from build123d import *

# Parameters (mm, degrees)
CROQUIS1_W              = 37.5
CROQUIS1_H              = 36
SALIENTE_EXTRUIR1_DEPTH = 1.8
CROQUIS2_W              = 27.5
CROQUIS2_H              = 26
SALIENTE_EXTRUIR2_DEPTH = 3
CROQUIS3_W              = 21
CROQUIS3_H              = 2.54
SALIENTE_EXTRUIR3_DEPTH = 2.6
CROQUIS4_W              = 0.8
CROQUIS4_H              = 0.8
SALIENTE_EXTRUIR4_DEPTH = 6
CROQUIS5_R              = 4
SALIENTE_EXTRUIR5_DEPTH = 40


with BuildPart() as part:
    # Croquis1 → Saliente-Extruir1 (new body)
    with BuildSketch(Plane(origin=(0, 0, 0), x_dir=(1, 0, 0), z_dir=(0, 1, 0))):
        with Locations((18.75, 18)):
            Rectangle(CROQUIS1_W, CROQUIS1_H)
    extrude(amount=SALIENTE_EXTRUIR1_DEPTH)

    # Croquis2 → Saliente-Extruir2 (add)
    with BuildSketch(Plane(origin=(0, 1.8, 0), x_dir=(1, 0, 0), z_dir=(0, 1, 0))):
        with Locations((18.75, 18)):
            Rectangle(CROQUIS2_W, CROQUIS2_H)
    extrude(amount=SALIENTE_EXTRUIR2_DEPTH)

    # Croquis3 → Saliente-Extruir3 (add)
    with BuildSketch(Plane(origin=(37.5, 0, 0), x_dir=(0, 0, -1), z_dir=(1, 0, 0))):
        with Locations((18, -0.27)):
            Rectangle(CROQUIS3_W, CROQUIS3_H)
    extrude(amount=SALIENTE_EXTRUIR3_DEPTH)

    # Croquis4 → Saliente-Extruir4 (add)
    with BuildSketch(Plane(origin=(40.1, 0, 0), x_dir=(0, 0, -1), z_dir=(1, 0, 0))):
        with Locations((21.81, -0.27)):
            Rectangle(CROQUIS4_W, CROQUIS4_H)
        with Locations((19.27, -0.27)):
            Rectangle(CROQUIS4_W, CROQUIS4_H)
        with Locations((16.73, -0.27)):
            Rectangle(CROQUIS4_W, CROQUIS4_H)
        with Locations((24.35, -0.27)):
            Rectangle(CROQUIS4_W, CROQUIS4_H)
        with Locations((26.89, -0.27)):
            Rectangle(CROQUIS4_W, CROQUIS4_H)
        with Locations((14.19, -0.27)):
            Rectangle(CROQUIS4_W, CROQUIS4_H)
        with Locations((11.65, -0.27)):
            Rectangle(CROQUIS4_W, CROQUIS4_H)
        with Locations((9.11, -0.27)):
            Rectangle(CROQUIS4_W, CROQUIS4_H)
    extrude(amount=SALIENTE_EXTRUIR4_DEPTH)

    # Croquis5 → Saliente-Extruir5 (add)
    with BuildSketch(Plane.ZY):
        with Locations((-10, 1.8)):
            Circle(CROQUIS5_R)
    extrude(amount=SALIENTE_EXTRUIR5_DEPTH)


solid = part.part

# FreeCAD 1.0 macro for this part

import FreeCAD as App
import Part
import Sketcher
from FreeCAD import Vector

doc = App.newDocument("Part")
params = doc.addObject("Spreadsheet::Sheet", "Params")
for row, (alias, value) in enumerate([
    ("sketch1_height", "36 mm"),
    ("sketch1_width", "37.5 mm"),
    ("pad1_length", "1.8 mm"),
    ("sketch2_height", "26 mm"),
    ("sketch2_width", "27.5 mm"),
    ("pad2_length", "3 mm"),
    ("sketch3_height", "21 mm"),
    ("sketch3_width", "2.54 mm"),
    ("pad3_length", "2.6 mm"),
    ("sketch4_width", "0.8 mm"),
    ("pad4_length", "6 mm"),
    ("sketch5_diameter", "8 mm"),
    ("pad5_length", "40 mm"),
], start=1):
    params.set(f"A{row}", alias)
    params.set(f"B{row}", "=" + value)
    params.setAlias(f"B{row}", alias)

body = doc.addObject("PartDesign::Body", "Body")

# Sketch on XZ plane
sketch1 = doc.addObject("Sketcher::SketchObject", "Sketch")
body.addObject(sketch1)
sketch1.AttachmentSupport = (doc.XZ_Plane, [""])
sketch1.MapMode = "FlatFace"
sketch1.addGeometry(Part.LineSegment(Vector(0, -36, 0), Vector(0, 0, 0)), False)
sketch1.addGeometry(Part.LineSegment(Vector(0, 0, 0), Vector(38, 0, 0)), False)
sketch1.addGeometry(Part.LineSegment(Vector(38, 0, 0), Vector(38, -36, 0)), False)
sketch1.addGeometry(Part.LineSegment(Vector(38, -36, 0), Vector(0, -36, 0)), False)
sketch1.addConstraint(Sketcher.Constraint("Coincident", 0, 2, 1, 1))
sketch1.addConstraint(Sketcher.Constraint("Coincident", 1, 2, 2, 1))
sketch1.addConstraint(Sketcher.Constraint("Coincident", 2, 2, 3, 1))
sketch1.addConstraint(Sketcher.Constraint("Coincident", 3, 2, 0, 1))
sketch1.addConstraint(Sketcher.Constraint("Vertical", 0))
sketch1.addConstraint(Sketcher.Constraint("Horizontal", 1))
sketch1.addConstraint(Sketcher.Constraint("Vertical", 2))
sketch1.addConstraint(Sketcher.Constraint("Horizontal", 3))
sketch1.addConstraint(Sketcher.Constraint("Coincident", 0, 2, -1, 1))
sketch1.addConstraint(Sketcher.Constraint("DistanceY", 0, 1, 0, 2, 36.0))
sketch1.addConstraint(Sketcher.Constraint("DistanceX", 1, 1, 1, 2, 37.5))
sketch1.setExpression("Constraints[9]", "Params.sketch1_height")
sketch1.setExpression("Constraints[10]", "Params.sketch1_width")
pad1 = doc.addObject("PartDesign::Pad", "Pad")
body.addObject(pad1)
pad1.Profile = sketch1
pad1.setExpression("Length", "Params.pad1_length")
pad1.Reversed = True

# Sketch on XZ plane
sketch2 = doc.addObject("Sketcher::SketchObject", "Sketch001")
body.addObject(sketch2)
sketch2.AttachmentSupport = (doc.XZ_Plane, [""])
sketch2.MapMode = "FlatFace"
sketch2.AttachmentOffset = App.Placement(Vector(0, 0, -1.8), App.Rotation())
sketch2.addGeometry(Part.LineSegment(Vector(5, -31, 0), Vector(5, -5, 0)), False)
sketch2.addGeometry(Part.LineSegment(Vector(5, -5, 0), Vector(32, -5, 0)), False)
sketch2.addGeometry(Part.LineSegment(Vector(32, -5, 0), Vector(32, -31, 0)), False)
sketch2.addGeometry(Part.LineSegment(Vector(32, -31, 0), Vector(5, -31, 0)), False)
sketch2.addConstraint(Sketcher.Constraint("Coincident", 0, 2, 1, 1))
sketch2.addConstraint(Sketcher.Constraint("Coincident", 1, 2, 2, 1))
sketch2.addConstraint(Sketcher.Constraint("Coincident", 2, 2, 3, 1))
sketch2.addConstraint(Sketcher.Constraint("Coincident", 3, 2, 0, 1))
sketch2.addConstraint(Sketcher.Constraint("Vertical", 0))
sketch2.addConstraint(Sketcher.Constraint("Horizontal", 1))
sketch2.addConstraint(Sketcher.Constraint("Vertical", 2))
sketch2.addConstraint(Sketcher.Constraint("Horizontal", 3))
sketch2.addConstraint(Sketcher.Constraint("DistanceY", 0, 1, 0, 2, 26.0))
sketch2.addConstraint(Sketcher.Constraint("DistanceX", 1, 1, 1, 2, 27.5))
sketch2.addConstraint(Sketcher.Constraint("DistanceX", -1, 1, 0, 2, 5.0))
sketch2.addConstraint(Sketcher.Constraint("DistanceY", 0, 2, -1, 1, 5.0))
sketch2.setExpression("Constraints[8]", "Params.sketch2_height")
sketch2.setExpression("Constraints[9]", "Params.sketch2_width")
pad2 = doc.addObject("PartDesign::Pad", "Pad001")
body.addObject(pad2)
pad2.Profile = sketch2
pad2.setExpression("Length", "Params.pad2_length")
pad2.Reversed = True

# Sketch on YZ plane
sketch3 = doc.addObject("Sketcher::SketchObject", "Sketch002")
body.addObject(sketch3)
sketch3.AttachmentSupport = (doc.YZ_Plane, [""])
sketch3.MapMode = "FlatFace"
sketch3.AttachmentOffset = App.Placement(Vector(0, 0, 37.5), App.Rotation())
sketch3.addGeometry(Part.LineSegment(Vector(1, -7.5, 0), Vector(-1.5, -7.5, 0)), False)
sketch3.addGeometry(Part.LineSegment(Vector(-1.5, -7.5, 0), Vector(-1.5, -28.5, 0)), False)
sketch3.addGeometry(Part.LineSegment(Vector(-1.5, -28.5, 0), Vector(1, -28.5, 0)), False)
sketch3.addGeometry(Part.LineSegment(Vector(1, -28.5, 0), Vector(1, -7.5, 0)), False)
sketch3.addConstraint(Sketcher.Constraint("Coincident", 0, 2, 1, 1))
sketch3.addConstraint(Sketcher.Constraint("Coincident", 1, 2, 2, 1))
sketch3.addConstraint(Sketcher.Constraint("Coincident", 2, 2, 3, 1))
sketch3.addConstraint(Sketcher.Constraint("Coincident", 3, 2, 0, 1))
sketch3.addConstraint(Sketcher.Constraint("Horizontal", 0))
sketch3.addConstraint(Sketcher.Constraint("Vertical", 1))
sketch3.addConstraint(Sketcher.Constraint("Horizontal", 2))
sketch3.addConstraint(Sketcher.Constraint("Vertical", 3))
sketch3.addConstraint(Sketcher.Constraint("DistanceY", 1, 2, 1, 1, 21.0))
sketch3.addConstraint(Sketcher.Constraint("DistanceX", -1, 1, 2, 2, 1.0))
sketch3.addConstraint(Sketcher.Constraint("DistanceX", 0, 2, 0, 1, 2.54))
sketch3.addConstraint(Sketcher.Constraint("DistanceY", 0, 2, -1, 1, 7.5))
sketch3.setExpression("Constraints[8]", "Params.sketch3_height")
sketch3.setExpression("Constraints[10]", "Params.sketch3_width")
pad3 = doc.addObject("PartDesign::Pad", "Pad002")
body.addObject(pad3)
pad3.Profile = sketch3
pad3.setExpression("Length", "Params.pad3_length")

# Sketch on YZ plane
sketch4 = doc.addObject("Sketcher::SketchObject", "Sketch003")
body.addObject(sketch4)
sketch4.AttachmentSupport = (doc.YZ_Plane, [""])
sketch4.MapMode = "FlatFace"
sketch4.AttachmentOffset = App.Placement(Vector(0, 0, 40.1), App.Rotation())
sketch4.addGeometry(Part.LineSegment(Vector(0.1, -21.4, 0), Vector(-0.7, -21.4, 0)), False)
sketch4.addGeometry(Part.LineSegment(Vector(-0.7, -21.4, 0), Vector(-0.7, -22.2, 0)), False)
sketch4.addGeometry(Part.LineSegment(Vector(-0.7, -22.2, 0), Vector(0.1, -22.2, 0)), False)
sketch4.addGeometry(Part.LineSegment(Vector(0.1, -22.2, 0), Vector(0.1, -21.4, 0)), False)
sketch4.addGeometry(Part.LineSegment(Vector(0.1, -18.9, 0), Vector(-0.7, -18.9, 0)), False)
sketch4.addGeometry(Part.LineSegment(Vector(-0.7, -18.9, 0), Vector(-0.7, -19.7, 0)), False)
sketch4.addGeometry(Part.LineSegment(Vector(-0.7, -19.7, 0), Vector(0.1, -19.7, 0)), False)
sketch4.addGeometry(Part.LineSegment(Vector(0.1, -19.7, 0), Vector(0.1, -18.9, 0)), False)
sketch4.addGeometry(Part.LineSegment(Vector(0.1, -16.3, 0), Vector(-0.7, -16.3, 0)), False)
sketch4.addGeometry(Part.LineSegment(Vector(-0.7, -16.3, 0), Vector(-0.7, -17.1, 0)), False)
sketch4.addGeometry(Part.LineSegment(Vector(-0.7, -17.1, 0), Vector(0.1, -17.1, 0)), False)
sketch4.addGeometry(Part.LineSegment(Vector(0.1, -17.1, 0), Vector(0.1, -16.3, 0)), False)
sketch4.addGeometry(Part.LineSegment(Vector(0.1, -23.9, 0), Vector(-0.7, -23.9, 0)), False)
sketch4.addGeometry(Part.LineSegment(Vector(-0.7, -23.9, 0), Vector(-0.7, -24.8, 0)), False)
sketch4.addGeometry(Part.LineSegment(Vector(-0.7, -24.8, 0), Vector(0.1, -24.8, 0)), False)
sketch4.addGeometry(Part.LineSegment(Vector(0.1, -24.8, 0), Vector(0.1, -23.9, 0)), False)
sketch4.addGeometry(Part.LineSegment(Vector(0.1, -26.5, 0), Vector(-0.7, -26.5, 0)), False)
sketch4.addGeometry(Part.LineSegment(Vector(-0.7, -26.5, 0), Vector(-0.7, -27.3, 0)), False)
sketch4.addGeometry(Part.LineSegment(Vector(-0.7, -27.3, 0), Vector(0.1, -27.3, 0)), False)
sketch4.addGeometry(Part.LineSegment(Vector(0.1, -27.3, 0), Vector(0.1, -26.5, 0)), False)
sketch4.addGeometry(Part.LineSegment(Vector(0.1, -13.8, 0), Vector(-0.7, -13.8, 0)), False)
sketch4.addGeometry(Part.LineSegment(Vector(-0.7, -13.8, 0), Vector(-0.7, -14.6, 0)), False)
sketch4.addGeometry(Part.LineSegment(Vector(-0.7, -14.6, 0), Vector(0.1, -14.6, 0)), False)
sketch4.addGeometry(Part.LineSegment(Vector(0.1, -14.6, 0), Vector(0.1, -13.8, 0)), False)
sketch4.addGeometry(Part.LineSegment(Vector(0.1, -11.2, 0), Vector(-0.7, -11.2, 0)), False)
sketch4.addGeometry(Part.LineSegment(Vector(-0.7, -11.2, 0), Vector(-0.7, -12.1, 0)), False)
sketch4.addGeometry(Part.LineSegment(Vector(-0.7, -12.1, 0), Vector(0.1, -12.1, 0)), False)
sketch4.addGeometry(Part.LineSegment(Vector(0.1, -12.1, 0), Vector(0.1, -11.2, 0)), False)
sketch4.addGeometry(Part.LineSegment(Vector(0.1, -8.7, 0), Vector(-0.7, -8.7, 0)), False)
sketch4.addGeometry(Part.LineSegment(Vector(-0.7, -8.7, 0), Vector(-0.7, -9.5, 0)), False)
sketch4.addGeometry(Part.LineSegment(Vector(-0.7, -9.5, 0), Vector(0.1, -9.5, 0)), False)
sketch4.addGeometry(Part.LineSegment(Vector(0.1, -9.5, 0), Vector(0.1, -8.7, 0)), False)
sketch4.addConstraint(Sketcher.Constraint("Coincident", 0, 2, 1, 1))
sketch4.addConstraint(Sketcher.Constraint("Coincident", 1, 2, 2, 1))
sketch4.addConstraint(Sketcher.Constraint("Coincident", 2, 2, 3, 1))
sketch4.addConstraint(Sketcher.Constraint("Coincident", 3, 2, 0, 1))
sketch4.addConstraint(Sketcher.Constraint("Coincident", 4, 2, 5, 1))
sketch4.addConstraint(Sketcher.Constraint("Coincident", 5, 2, 6, 1))
sketch4.addConstraint(Sketcher.Constraint("Coincident", 6, 2, 7, 1))
sketch4.addConstraint(Sketcher.Constraint("Coincident", 7, 2, 4, 1))
sketch4.addConstraint(Sketcher.Constraint("Coincident", 8, 2, 9, 1))
sketch4.addConstraint(Sketcher.Constraint("Coincident", 9, 2, 10, 1))
sketch4.addConstraint(Sketcher.Constraint("Coincident", 10, 2, 11, 1))
sketch4.addConstraint(Sketcher.Constraint("Coincident", 11, 2, 8, 1))
sketch4.addConstraint(Sketcher.Constraint("Coincident", 12, 2, 13, 1))
sketch4.addConstraint(Sketcher.Constraint("Coincident", 13, 2, 14, 1))
sketch4.addConstraint(Sketcher.Constraint("Coincident", 14, 2, 15, 1))
sketch4.addConstraint(Sketcher.Constraint("Coincident", 15, 2, 12, 1))
sketch4.addConstraint(Sketcher.Constraint("Coincident", 16, 2, 17, 1))
sketch4.addConstraint(Sketcher.Constraint("Coincident", 17, 2, 18, 1))
sketch4.addConstraint(Sketcher.Constraint("Coincident", 18, 2, 19, 1))
sketch4.addConstraint(Sketcher.Constraint("Coincident", 19, 2, 16, 1))
sketch4.addConstraint(Sketcher.Constraint("Coincident", 20, 2, 21, 1))
sketch4.addConstraint(Sketcher.Constraint("Coincident", 21, 2, 22, 1))
sketch4.addConstraint(Sketcher.Constraint("Coincident", 22, 2, 23, 1))
sketch4.addConstraint(Sketcher.Constraint("Coincident", 23, 2, 20, 1))
sketch4.addConstraint(Sketcher.Constraint("Coincident", 24, 2, 25, 1))
sketch4.addConstraint(Sketcher.Constraint("Coincident", 25, 2, 26, 1))
sketch4.addConstraint(Sketcher.Constraint("Coincident", 26, 2, 27, 1))
sketch4.addConstraint(Sketcher.Constraint("Coincident", 27, 2, 24, 1))
sketch4.addConstraint(Sketcher.Constraint("Coincident", 28, 2, 29, 1))
sketch4.addConstraint(Sketcher.Constraint("Coincident", 29, 2, 30, 1))
sketch4.addConstraint(Sketcher.Constraint("Coincident", 30, 2, 31, 1))
sketch4.addConstraint(Sketcher.Constraint("Coincident", 31, 2, 28, 1))
sketch4.addConstraint(Sketcher.Constraint("Horizontal", 0))
sketch4.addConstraint(Sketcher.Constraint("Vertical", 1))
sketch4.addConstraint(Sketcher.Constraint("Horizontal", 2))
sketch4.addConstraint(Sketcher.Constraint("Vertical", 3))
sketch4.addConstraint(Sketcher.Constraint("Horizontal", 4))
sketch4.addConstraint(Sketcher.Constraint("Vertical", 5))
sketch4.addConstraint(Sketcher.Constraint("Horizontal", 6))
sketch4.addConstraint(Sketcher.Constraint("Vertical", 7))
sketch4.addConstraint(Sketcher.Constraint("Horizontal", 8))
sketch4.addConstraint(Sketcher.Constraint("Vertical", 9))
sketch4.addConstraint(Sketcher.Constraint("Horizontal", 10))
sketch4.addConstraint(Sketcher.Constraint("Vertical", 11))
sketch4.addConstraint(Sketcher.Constraint("Horizontal", 12))
sketch4.addConstraint(Sketcher.Constraint("Vertical", 13))
sketch4.addConstraint(Sketcher.Constraint("Horizontal", 14))
sketch4.addConstraint(Sketcher.Constraint("Vertical", 15))
sketch4.addConstraint(Sketcher.Constraint("Horizontal", 16))
sketch4.addConstraint(Sketcher.Constraint("Vertical", 17))
sketch4.addConstraint(Sketcher.Constraint("Horizontal", 18))
sketch4.addConstraint(Sketcher.Constraint("Vertical", 19))
sketch4.addConstraint(Sketcher.Constraint("Horizontal", 20))
sketch4.addConstraint(Sketcher.Constraint("Vertical", 21))
sketch4.addConstraint(Sketcher.Constraint("Horizontal", 22))
sketch4.addConstraint(Sketcher.Constraint("Vertical", 23))
sketch4.addConstraint(Sketcher.Constraint("Horizontal", 24))
sketch4.addConstraint(Sketcher.Constraint("Vertical", 25))
sketch4.addConstraint(Sketcher.Constraint("Horizontal", 26))
sketch4.addConstraint(Sketcher.Constraint("Vertical", 27))
sketch4.addConstraint(Sketcher.Constraint("Horizontal", 28))
sketch4.addConstraint(Sketcher.Constraint("Vertical", 29))
sketch4.addConstraint(Sketcher.Constraint("Horizontal", 30))
sketch4.addConstraint(Sketcher.Constraint("Vertical", 31))
sketch4.addConstraint(Sketcher.Constraint("Vertical", 1, 2, 4, 2))
sketch4.addConstraint(Sketcher.Constraint("Vertical", 3, 2, 6, 2))
sketch4.addConstraint(Sketcher.Constraint("Vertical", 5, 2, 8, 2))
sketch4.addConstraint(Sketcher.Constraint("Vertical", 7, 2, 10, 2))
sketch4.addConstraint(Sketcher.Constraint("Vertical", 9, 2, 12, 2))
sketch4.addConstraint(Sketcher.Constraint("Vertical", 11, 2, 14, 2))
sketch4.addConstraint(Sketcher.Constraint("Vertical", 13, 2, 16, 2))
sketch4.addConstraint(Sketcher.Constraint("Vertical", 15, 2, 18, 2))
sketch4.addConstraint(Sketcher.Constraint("Vertical", 17, 2, 20, 2))
sketch4.addConstraint(Sketcher.Constraint("Vertical", 19, 2, 22, 2))
sketch4.addConstraint(Sketcher.Constraint("Vertical", 21, 2, 24, 2))
sketch4.addConstraint(Sketcher.Constraint("Vertical", 23, 2, 26, 2))
sketch4.addConstraint(Sketcher.Constraint("Vertical", 25, 2, 28, 2))
sketch4.addConstraint(Sketcher.Constraint("Vertical", 27, 2, 30, 2))
sketch4.addConstraint(Sketcher.Constraint("Equal", 30, 1))
sketch4.addConstraint(Sketcher.Constraint("Equal", 3, 5))
sketch4.addConstraint(Sketcher.Constraint("Equal", 7, 9))
sketch4.addConstraint(Sketcher.Constraint("Equal", 11, 13))
sketch4.addConstraint(Sketcher.Constraint("Equal", 15, 17))
sketch4.addConstraint(Sketcher.Constraint("Equal", 19, 21))
sketch4.addConstraint(Sketcher.Constraint("Equal", 23, 25))
sketch4.addConstraint(Sketcher.Constraint("Equal", 27, 29))
sketch4.addConstraint(Sketcher.Constraint("DistanceX", 0, 2, 0, 1, 0.8))
sketch4.addConstraint(Sketcher.Constraint("DistanceX", 0, 2, -1, 1, 0.67))
sketch4.addConstraint(Sketcher.Constraint("DistanceY", 0, 2, -1, 1, 21.41))
sketch4.addConstraint(Sketcher.Constraint("DistanceY", 4, 2, -1, 1, 18.87))
sketch4.addConstraint(Sketcher.Constraint("DistanceY", 8, 2, -1, 1, 16.33))
sketch4.addConstraint(Sketcher.Constraint("DistanceY", 12, 2, -1, 1, 23.95))
sketch4.addConstraint(Sketcher.Constraint("DistanceY", 16, 2, -1, 1, 26.49))
sketch4.addConstraint(Sketcher.Constraint("DistanceY", 20, 2, -1, 1, 13.79))
sketch4.addConstraint(Sketcher.Constraint("DistanceY", 24, 2, -1, 1, 11.25))
sketch4.addConstraint(Sketcher.Constraint("DistanceY", 28, 2, -1, 1, 8.71))
sketch4.setExpression("Constraints[86]", "Params.sketch4_width")
pad4 = doc.addObject("PartDesign::Pad", "Pad003")
body.addObject(pad4)
pad4.Profile = sketch4
pad4.setExpression("Length", "Params.pad4_length")

# Sketch on YZ plane
sketch5 = doc.addObject("Sketcher::SketchObject", "Sketch004")
body.addObject(sketch5)
sketch5.AttachmentSupport = (doc.YZ_Plane, [""])
sketch5.MapMode = "FlatFace"
sketch5.addGeometry(Part.Circle(Vector(1.8, -10, 0), Vector(0, 0, 1), 4), False)
sketch5.addConstraint(Sketcher.Constraint("Diameter", 0, 8.0))
sketch5.addConstraint(Sketcher.Constraint("DistanceY", 0, 3, -1, 1, 10.0))
sketch5.addConstraint(Sketcher.Constraint("DistanceX", -1, 1, 0, 3, 1.8))
sketch5.setExpression("Constraints[0]", "Params.sketch5_diameter")
pad5 = doc.addObject("PartDesign::Pad", "Pad004")
body.addObject(pad5)
pad5.Profile = sketch5
pad5.setExpression("Length", "Params.pad5_length")
pad5.Reversed = True

doc.recompute()
